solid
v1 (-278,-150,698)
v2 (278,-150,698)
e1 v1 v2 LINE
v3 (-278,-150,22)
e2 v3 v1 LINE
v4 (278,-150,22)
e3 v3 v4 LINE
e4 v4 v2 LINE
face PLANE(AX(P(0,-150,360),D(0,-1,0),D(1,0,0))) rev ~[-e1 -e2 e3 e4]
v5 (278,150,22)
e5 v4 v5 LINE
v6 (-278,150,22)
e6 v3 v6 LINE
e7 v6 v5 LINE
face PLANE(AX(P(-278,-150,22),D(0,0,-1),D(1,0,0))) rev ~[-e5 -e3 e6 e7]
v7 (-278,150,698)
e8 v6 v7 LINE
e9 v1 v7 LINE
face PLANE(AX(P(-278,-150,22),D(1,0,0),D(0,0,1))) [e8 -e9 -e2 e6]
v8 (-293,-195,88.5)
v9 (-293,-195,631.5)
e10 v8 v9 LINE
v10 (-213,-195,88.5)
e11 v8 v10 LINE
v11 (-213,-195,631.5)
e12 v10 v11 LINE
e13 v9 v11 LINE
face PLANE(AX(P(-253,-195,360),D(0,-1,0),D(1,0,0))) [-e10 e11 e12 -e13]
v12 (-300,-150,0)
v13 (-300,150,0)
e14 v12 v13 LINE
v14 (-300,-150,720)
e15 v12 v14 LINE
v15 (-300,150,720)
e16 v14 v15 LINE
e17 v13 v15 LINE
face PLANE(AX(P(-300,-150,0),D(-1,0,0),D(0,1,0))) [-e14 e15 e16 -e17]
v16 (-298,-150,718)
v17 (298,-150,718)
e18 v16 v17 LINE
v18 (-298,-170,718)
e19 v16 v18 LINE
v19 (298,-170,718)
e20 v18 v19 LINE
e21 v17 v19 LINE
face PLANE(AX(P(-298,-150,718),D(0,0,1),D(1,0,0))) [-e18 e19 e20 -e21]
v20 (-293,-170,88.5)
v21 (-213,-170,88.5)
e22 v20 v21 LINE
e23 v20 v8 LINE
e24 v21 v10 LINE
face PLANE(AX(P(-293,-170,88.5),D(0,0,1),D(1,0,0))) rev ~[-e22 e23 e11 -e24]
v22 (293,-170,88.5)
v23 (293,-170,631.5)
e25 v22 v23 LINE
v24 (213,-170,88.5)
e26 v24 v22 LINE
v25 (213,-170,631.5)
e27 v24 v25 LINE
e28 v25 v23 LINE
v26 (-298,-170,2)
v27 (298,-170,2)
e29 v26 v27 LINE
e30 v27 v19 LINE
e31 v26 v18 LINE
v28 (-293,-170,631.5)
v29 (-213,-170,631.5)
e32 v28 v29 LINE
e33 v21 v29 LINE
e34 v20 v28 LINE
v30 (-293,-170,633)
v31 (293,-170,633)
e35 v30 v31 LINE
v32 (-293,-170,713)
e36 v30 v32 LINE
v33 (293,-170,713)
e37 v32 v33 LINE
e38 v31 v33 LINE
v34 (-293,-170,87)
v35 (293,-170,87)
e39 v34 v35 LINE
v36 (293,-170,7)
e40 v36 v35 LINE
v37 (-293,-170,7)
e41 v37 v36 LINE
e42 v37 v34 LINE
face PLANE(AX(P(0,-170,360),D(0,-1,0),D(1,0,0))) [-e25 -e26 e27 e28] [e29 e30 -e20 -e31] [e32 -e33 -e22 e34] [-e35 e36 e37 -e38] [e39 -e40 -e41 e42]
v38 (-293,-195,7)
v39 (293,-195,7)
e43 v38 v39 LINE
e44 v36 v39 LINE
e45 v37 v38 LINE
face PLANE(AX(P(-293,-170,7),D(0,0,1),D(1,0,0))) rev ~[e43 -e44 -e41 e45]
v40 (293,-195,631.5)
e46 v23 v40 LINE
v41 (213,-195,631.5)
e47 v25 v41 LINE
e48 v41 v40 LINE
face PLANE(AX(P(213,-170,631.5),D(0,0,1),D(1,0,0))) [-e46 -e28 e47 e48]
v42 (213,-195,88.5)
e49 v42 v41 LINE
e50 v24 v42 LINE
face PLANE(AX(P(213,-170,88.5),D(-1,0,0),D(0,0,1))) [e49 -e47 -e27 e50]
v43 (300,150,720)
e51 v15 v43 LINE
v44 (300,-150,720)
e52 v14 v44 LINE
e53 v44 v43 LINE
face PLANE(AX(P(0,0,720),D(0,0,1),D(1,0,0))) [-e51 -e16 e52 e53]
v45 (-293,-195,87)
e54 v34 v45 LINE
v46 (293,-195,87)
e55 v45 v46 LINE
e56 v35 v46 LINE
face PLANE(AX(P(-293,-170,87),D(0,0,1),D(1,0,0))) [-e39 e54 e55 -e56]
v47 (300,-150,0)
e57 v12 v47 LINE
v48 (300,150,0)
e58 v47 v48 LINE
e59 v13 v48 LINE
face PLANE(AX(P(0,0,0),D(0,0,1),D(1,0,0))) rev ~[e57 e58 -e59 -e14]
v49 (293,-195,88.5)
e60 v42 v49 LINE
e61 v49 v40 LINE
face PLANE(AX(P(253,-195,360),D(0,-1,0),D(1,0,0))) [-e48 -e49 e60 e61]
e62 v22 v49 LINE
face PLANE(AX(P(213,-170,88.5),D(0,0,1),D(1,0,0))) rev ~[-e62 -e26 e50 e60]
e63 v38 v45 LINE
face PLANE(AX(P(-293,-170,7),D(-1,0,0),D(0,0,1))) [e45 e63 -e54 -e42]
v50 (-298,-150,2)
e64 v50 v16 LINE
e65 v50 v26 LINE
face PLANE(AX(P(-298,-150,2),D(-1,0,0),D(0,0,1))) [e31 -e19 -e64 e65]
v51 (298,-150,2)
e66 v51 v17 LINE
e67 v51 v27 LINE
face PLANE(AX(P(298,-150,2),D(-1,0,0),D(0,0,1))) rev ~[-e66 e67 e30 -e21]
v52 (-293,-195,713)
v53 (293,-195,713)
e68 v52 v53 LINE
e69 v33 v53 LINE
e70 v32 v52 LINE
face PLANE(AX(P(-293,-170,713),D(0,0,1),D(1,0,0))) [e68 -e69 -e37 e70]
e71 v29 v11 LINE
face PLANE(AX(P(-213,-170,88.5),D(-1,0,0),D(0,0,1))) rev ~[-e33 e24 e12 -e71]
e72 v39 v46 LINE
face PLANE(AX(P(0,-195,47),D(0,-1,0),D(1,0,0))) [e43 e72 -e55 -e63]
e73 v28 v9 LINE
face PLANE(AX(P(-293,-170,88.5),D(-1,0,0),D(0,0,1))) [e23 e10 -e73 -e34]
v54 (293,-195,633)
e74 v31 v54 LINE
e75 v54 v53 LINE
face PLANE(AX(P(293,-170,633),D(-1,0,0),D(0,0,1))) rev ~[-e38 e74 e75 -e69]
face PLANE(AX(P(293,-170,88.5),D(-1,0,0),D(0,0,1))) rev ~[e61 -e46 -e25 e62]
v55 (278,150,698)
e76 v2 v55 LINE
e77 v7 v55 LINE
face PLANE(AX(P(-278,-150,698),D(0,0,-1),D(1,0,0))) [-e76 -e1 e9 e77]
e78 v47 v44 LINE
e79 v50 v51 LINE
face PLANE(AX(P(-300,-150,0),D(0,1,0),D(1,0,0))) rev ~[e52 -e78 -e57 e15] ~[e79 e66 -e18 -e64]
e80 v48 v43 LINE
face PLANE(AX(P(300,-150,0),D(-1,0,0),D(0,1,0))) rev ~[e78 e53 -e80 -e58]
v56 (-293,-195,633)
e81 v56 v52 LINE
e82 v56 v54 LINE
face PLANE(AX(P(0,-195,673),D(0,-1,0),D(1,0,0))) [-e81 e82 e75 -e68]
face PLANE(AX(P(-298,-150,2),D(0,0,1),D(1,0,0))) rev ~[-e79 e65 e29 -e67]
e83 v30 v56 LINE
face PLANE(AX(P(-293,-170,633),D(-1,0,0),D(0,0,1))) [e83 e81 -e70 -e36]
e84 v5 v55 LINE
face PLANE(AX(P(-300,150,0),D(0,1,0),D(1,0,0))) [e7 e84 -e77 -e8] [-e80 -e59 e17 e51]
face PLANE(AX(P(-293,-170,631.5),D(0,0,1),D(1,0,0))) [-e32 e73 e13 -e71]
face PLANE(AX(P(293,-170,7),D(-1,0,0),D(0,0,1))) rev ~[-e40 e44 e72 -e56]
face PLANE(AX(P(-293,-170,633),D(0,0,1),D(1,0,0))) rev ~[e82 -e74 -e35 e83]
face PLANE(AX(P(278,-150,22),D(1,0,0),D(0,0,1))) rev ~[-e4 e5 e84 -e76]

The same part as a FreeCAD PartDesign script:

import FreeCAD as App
import Part
import Sketcher

V = App.Vector

doc = App.newDocument("Part")
body = doc.addObject("PartDesign::Body", "Body")

sketch1 = body.newObject("Sketcher::SketchObject", "Sketch")
sketch1.AttachmentSupport = (doc.getObject("XY_Plane"), [""])
sketch1.MapMode = "FlatFace"
sketch1.addGeometry([
    Part.LineSegment(V(-300, 150, 0), V(-300, -150, 0)),
    Part.LineSegment(V(-300, -150, 0), V(300, -150, 0)),
    Part.LineSegment(V(300, -150, 0), V(300, 150, 0)),
    Part.LineSegment(V(300, 150, 0), V(-300, 150, 0)),
], False)
sketch1.addConstraint([
    Sketcher.Constraint("Coincident", 0, 2, 1, 1),
    Sketcher.Constraint("Coincident", 1, 2, 2, 1),
    Sketcher.Constraint("Coincident", 2, 2, 3, 1),
    Sketcher.Constraint("Coincident", 3, 2, 0, 1),
    Sketcher.Constraint("Vertical", 0),
    Sketcher.Constraint("Horizontal", 1),
    Sketcher.Constraint("Vertical", 2),
    Sketcher.Constraint("Horizontal", 3),
    Sketcher.Constraint("Symmetric", 0, 2, 2, 2, -1, 1),
    Sketcher.Constraint("DistanceX", 1, 1, 1, 2, 600.0),
    Sketcher.Constraint("DistanceY", 0, 2, 0, 1, 300.0),
])
pad1 = body.newObject("PartDesign::Pad", "Pad")
pad1.Profile = sketch1
pad1.Length = 720

sketch2 = body.newObject("Sketcher::SketchObject", "Sketch001")
sketch2.AttachmentSupport = (doc.getObject("XZ_Plane"), [""])
sketch2.MapMode = "FlatFace"
sketch2.AttachmentOffset = App.Placement(V(0, 0, 150), App.Rotation())
sketch2.addGeometry([
    Part.LineSegment(V(-278, 698, 0), V(-278, 22, 0)),
    Part.LineSegment(V(-278, 22, 0), V(278, 22, 0)),
    Part.LineSegment(V(278, 22, 0), V(278, 698, 0)),
    Part.LineSegment(V(278, 698, 0), V(-278, 698, 0)),
], False)
sketch2.addConstraint([
    Sketcher.Constraint("Coincident", 0, 2, 1, 1),
    Sketcher.Constraint("Coincident", 1, 2, 2, 1),
    Sketcher.Constraint("Coincident", 2, 2, 3, 1),
    Sketcher.Constraint("Coincident", 3, 2, 0, 1),
    Sketcher.Constraint("Vertical", 0),
    Sketcher.Constraint("Horizontal", 1),
    Sketcher.Constraint("Vertical", 2),
    Sketcher.Constraint("Horizontal", 3),
    Sketcher.Constraint("DistanceX", 1, 1, 1, 2, 556.0),
    Sketcher.Constraint("DistanceY", 0, 2, 0, 1, 676.0),
    Sketcher.Constraint("DistanceX", 0, 2, -1, 1, 278.0),
    Sketcher.Constraint("DistanceY", -1, 1, 0, 2, 22.0),
])
pocket1 = body.newObject("PartDesign::Pocket", "Pocket")
pocket1.Profile = sketch2
pocket1.Type = "ThroughAll"

sketch3 = body.newObject("Sketcher::SketchObject", "Sketch002")
sketch3.AttachmentSupport = (doc.getObject("XZ_Plane"), [""])
sketch3.MapMode = "FlatFace"
sketch3.AttachmentOffset = App.Placement(V(0, 0, 150), App.Rotation())
sketch3.addGeometry([
    Part.LineSegment(V(-298, 718, 0), V(-298, 2, 0)),
    Part.LineSegment(V(-298, 2, 0), V(298, 2, 0)),
    Part.LineSegment(V(298, 2, 0), V(298, 718, 0)),
    Part.LineSegment(V(298, 718, 0), V(-298, 718, 0)),
], False)
sketch3.addConstraint([
    Sketcher.Constraint("Coincident", 0, 2, 1, 1),
    Sketcher.Constraint("Coincident", 1, 2, 2, 1),
    Sketcher.Constraint("Coincident", 2, 2, 3, 1),
    Sketcher.Constraint("Coincident", 3, 2, 0, 1),
    Sketcher.Constraint("Vertical", 0),
    Sketcher.Constraint("Horizontal", 1),
    Sketcher.Constraint("Vertical", 2),
    Sketcher.Constraint("Horizontal", 3),
    Sketcher.Constraint("DistanceX", 1, 1, 1, 2, 596.0),
    Sketcher.Constraint("DistanceY", 0, 2, 0, 1, 716.0),
    Sketcher.Constraint("DistanceX", 0, 2, -1, 1, 298.0),
    Sketcher.Constraint("DistanceY", -1, 1, 0, 2, 2.0),
])
pad2 = body.newObject("PartDesign::Pad", "Pad001")
pad2.Profile = sketch3
pad2.Length = 20

sketch4 = body.newObject("Sketcher::SketchObject", "Sketch003")
sketch4.AttachmentSupport = (doc.getObject("XZ_Plane"), [""])
sketch4.MapMode = "FlatFace"
sketch4.AttachmentOffset = App.Placement(V(0, 0, 170), App.Rotation())
sketch4.addGeometry([
    Part.LineSegment(V(-293, 713, 0), V(-293, 633, 0)),
    Part.LineSegment(V(-293, 633, 0), V(293, 633, 0)),
    Part.LineSegment(V(293, 633, 0), V(293, 713, 0)),
    Part.LineSegment(V(293, 713, 0), V(-293, 713, 0)),
    Part.LineSegment(V(-293, 632, 0), V(-293, 88, 0)),
    Part.LineSegment(V(-293, 88, 0), V(-213, 88, 0)),
    Part.LineSegment(V(-213, 88, 0), V(-213, 632, 0)),
    Part.LineSegment(V(-213, 632, 0), V(-293, 632, 0)),
    Part.LineSegment(V(213, 632, 0), V(213, 88, 0)),
    Part.LineSegment(V(213, 88, 0), V(293, 88, 0)),
    Part.LineSegment(V(293, 88, 0), V(293, 632, 0)),
    Part.LineSegment(V(293, 632, 0), V(213, 632, 0)),
    Part.LineSegment(V(-293, 87, 0), V(-293, 7, 0)),
    Part.LineSegment(V(-293, 7, 0), V(293, 7, 0)),
    Part.LineSegment(V(293, 7, 0), V(293, 87, 0)),
    Part.LineSegment(V(293, 87, 0), V(-293, 87, 0)),
], False)
sketch4.addConstraint([
    Sketcher.Constraint("Coincident", 0, 2, 1, 1),
    Sketcher.Constraint("Coincident", 1, 2, 2, 1),
    Sketcher.Constraint("Coincident", 2, 2, 3, 1),
    Sketcher.Constraint("Coincident", 3, 2, 0, 1),
    Sketcher.Constraint("Coincident", 4, 2, 5, 1),
    Sketcher.Constraint("Coincident", 5, 2, 6, 1),
    Sketcher.Constraint("Coincident", 6, 2, 7, 1),
    Sketcher.Constraint("Coincident", 7, 2, 4, 1),
    Sketcher.Constraint("Coincident", 8, 2, 9, 1),
    Sketcher.Constraint("Coincident", 9, 2, 10, 1),
    Sketcher.Constraint("Coincident", 10, 2, 11, 1),
    Sketcher.Constraint("Coincident", 11, 2, 8, 1),
    Sketcher.Constraint("Coincident", 12, 2, 13, 1),
    Sketcher.Constraint("Coincident", 13, 2, 14, 1),
    Sketcher.Constraint("Coincident", 14, 2, 15, 1),
    Sketcher.Constraint("Coincident", 15, 2, 12, 1),
    Sketcher.Constraint("Vertical", 0),
    Sketcher.Constraint("Horizontal", 1),
    Sketcher.Constraint("Vertical", 2),
    Sketcher.Constraint("Horizontal", 3),
    Sketcher.Constraint("Vertical", 4),
    Sketcher.Constraint("Horizontal", 5),
    Sketcher.Constraint("Vertical", 6),
    Sketcher.Constraint("Horizontal", 7),
    Sketcher.Constraint("Vertical", 8),
    Sketcher.Constraint("Horizontal", 9),
    Sketcher.Constraint("Vertical", 10),
    Sketcher.Constraint("Horizontal", 11),
    Sketcher.Constraint("Vertical", 12),
    Sketcher.Constraint("Horizontal", 13),
    Sketcher.Constraint("Vertical", 14),
    Sketcher.Constraint("Horizontal", 15),
    Sketcher.Constraint("Symmetric", 5, 2, 8, 2, -2),
    Sketcher.Constraint("Symmetric", 7, 2, 10, 2, -2),
    Sketcher.Constraint("Vertical", 3, 2, 4, 2),
    Sketcher.Constraint("Vertical", 2, 2, 9, 2),
    Sketcher.Constraint("Vertical", 7, 2, 12, 2),
    Sketcher.Constraint("Vertical", 10, 2, 13, 2),
    Sketcher.Constraint("Equal", 11, 0),
    Sketcher.Constraint("Equal", 2, 12),
    Sketcher.Constraint("DistanceX", 1, 1, 1, 2, 586.0),
    Sketcher.Constraint("DistanceX", 5, 1, 5, 2, 80.0),
    Sketcher.Constraint("DistanceY", 4, 2, 4, 1, 543.0),
    Sketcher.Constraint("DistanceY", -1, 1, 0, 2, 633.0),
    Sketcher.Constraint("DistanceY", -1, 1, 12, 2, 7.0),
    Sketcher.Constraint("DistanceY", -1, 1, 4, 2, 88.5),
])
pad3 = body.newObject("PartDesign::Pad", "Pad002")
pad3.Profile = sketch4
pad3.Length = 25

doc.recompute()
